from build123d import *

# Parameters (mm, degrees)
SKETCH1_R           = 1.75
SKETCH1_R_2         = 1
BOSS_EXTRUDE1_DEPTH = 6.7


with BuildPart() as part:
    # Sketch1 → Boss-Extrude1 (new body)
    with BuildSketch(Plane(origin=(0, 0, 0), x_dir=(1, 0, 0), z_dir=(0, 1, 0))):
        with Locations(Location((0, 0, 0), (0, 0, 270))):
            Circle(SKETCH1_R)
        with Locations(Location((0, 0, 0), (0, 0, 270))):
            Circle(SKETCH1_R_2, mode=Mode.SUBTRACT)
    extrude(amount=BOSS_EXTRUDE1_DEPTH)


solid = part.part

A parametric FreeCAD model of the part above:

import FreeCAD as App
import Part
import Sketcher
Q = App.Units.Quantity

doc = App.newDocument("Part")
params = doc.addObject("Spreadsheet::Sheet", "Params")
for row, (alias, value) in enumerate([
    ("sketch1_diameter", "2 mm"),
    ("sketch1_diameter2", "3.5 mm"),
    ("pad1_length", "6.7 mm"),
], start=1):
    params.set(f"A{row}", alias)
    params.set(f"B{row}", "=" + value)
    params.setAlias(f"B{row}", alias)

body = doc.addObject("PartDesign::Body", "Body")

sketch1 = body.newObject("Sketcher::SketchObject", "Sketch")
sketch1.AttachmentSupport = (doc.getObject("XZ_Plane"), [""])
sketch1.MapMode = "FlatFace"
sketch1.addGeometry([
    Part.Circle(App.Vector(0, 0, 0), App.Vector(0, 0, 1), 1.8),
    Part.Circle(App.Vector(0, 0, 0), App.Vector(0, 0, 1), 1),
], False)
sketch1.addConstraint([
    Sketcher.Constraint("Coincident", 0, 3, -1, 1),
    Sketcher.Constraint("Coincident", 1, 3, -1, 1),
    Sketcher.Constraint("Diameter", 1, Q("2 mm")),
    Sketcher.Constraint("Diameter", 0, Q("3.5 mm")),
])
sketch1.setExpression("Constraints[2]", "Params.sketch1_diameter")
sketch1.setExpression("Constraints[3]", "Params.sketch1_diameter2")
pad1 = body.newObject("PartDesign::Pad", "Pad")
pad1.Profile = sketch1
pad1.setExpression("Length", "Params.pad1_length")
pad1.Reversed = True

doc.recompute()
